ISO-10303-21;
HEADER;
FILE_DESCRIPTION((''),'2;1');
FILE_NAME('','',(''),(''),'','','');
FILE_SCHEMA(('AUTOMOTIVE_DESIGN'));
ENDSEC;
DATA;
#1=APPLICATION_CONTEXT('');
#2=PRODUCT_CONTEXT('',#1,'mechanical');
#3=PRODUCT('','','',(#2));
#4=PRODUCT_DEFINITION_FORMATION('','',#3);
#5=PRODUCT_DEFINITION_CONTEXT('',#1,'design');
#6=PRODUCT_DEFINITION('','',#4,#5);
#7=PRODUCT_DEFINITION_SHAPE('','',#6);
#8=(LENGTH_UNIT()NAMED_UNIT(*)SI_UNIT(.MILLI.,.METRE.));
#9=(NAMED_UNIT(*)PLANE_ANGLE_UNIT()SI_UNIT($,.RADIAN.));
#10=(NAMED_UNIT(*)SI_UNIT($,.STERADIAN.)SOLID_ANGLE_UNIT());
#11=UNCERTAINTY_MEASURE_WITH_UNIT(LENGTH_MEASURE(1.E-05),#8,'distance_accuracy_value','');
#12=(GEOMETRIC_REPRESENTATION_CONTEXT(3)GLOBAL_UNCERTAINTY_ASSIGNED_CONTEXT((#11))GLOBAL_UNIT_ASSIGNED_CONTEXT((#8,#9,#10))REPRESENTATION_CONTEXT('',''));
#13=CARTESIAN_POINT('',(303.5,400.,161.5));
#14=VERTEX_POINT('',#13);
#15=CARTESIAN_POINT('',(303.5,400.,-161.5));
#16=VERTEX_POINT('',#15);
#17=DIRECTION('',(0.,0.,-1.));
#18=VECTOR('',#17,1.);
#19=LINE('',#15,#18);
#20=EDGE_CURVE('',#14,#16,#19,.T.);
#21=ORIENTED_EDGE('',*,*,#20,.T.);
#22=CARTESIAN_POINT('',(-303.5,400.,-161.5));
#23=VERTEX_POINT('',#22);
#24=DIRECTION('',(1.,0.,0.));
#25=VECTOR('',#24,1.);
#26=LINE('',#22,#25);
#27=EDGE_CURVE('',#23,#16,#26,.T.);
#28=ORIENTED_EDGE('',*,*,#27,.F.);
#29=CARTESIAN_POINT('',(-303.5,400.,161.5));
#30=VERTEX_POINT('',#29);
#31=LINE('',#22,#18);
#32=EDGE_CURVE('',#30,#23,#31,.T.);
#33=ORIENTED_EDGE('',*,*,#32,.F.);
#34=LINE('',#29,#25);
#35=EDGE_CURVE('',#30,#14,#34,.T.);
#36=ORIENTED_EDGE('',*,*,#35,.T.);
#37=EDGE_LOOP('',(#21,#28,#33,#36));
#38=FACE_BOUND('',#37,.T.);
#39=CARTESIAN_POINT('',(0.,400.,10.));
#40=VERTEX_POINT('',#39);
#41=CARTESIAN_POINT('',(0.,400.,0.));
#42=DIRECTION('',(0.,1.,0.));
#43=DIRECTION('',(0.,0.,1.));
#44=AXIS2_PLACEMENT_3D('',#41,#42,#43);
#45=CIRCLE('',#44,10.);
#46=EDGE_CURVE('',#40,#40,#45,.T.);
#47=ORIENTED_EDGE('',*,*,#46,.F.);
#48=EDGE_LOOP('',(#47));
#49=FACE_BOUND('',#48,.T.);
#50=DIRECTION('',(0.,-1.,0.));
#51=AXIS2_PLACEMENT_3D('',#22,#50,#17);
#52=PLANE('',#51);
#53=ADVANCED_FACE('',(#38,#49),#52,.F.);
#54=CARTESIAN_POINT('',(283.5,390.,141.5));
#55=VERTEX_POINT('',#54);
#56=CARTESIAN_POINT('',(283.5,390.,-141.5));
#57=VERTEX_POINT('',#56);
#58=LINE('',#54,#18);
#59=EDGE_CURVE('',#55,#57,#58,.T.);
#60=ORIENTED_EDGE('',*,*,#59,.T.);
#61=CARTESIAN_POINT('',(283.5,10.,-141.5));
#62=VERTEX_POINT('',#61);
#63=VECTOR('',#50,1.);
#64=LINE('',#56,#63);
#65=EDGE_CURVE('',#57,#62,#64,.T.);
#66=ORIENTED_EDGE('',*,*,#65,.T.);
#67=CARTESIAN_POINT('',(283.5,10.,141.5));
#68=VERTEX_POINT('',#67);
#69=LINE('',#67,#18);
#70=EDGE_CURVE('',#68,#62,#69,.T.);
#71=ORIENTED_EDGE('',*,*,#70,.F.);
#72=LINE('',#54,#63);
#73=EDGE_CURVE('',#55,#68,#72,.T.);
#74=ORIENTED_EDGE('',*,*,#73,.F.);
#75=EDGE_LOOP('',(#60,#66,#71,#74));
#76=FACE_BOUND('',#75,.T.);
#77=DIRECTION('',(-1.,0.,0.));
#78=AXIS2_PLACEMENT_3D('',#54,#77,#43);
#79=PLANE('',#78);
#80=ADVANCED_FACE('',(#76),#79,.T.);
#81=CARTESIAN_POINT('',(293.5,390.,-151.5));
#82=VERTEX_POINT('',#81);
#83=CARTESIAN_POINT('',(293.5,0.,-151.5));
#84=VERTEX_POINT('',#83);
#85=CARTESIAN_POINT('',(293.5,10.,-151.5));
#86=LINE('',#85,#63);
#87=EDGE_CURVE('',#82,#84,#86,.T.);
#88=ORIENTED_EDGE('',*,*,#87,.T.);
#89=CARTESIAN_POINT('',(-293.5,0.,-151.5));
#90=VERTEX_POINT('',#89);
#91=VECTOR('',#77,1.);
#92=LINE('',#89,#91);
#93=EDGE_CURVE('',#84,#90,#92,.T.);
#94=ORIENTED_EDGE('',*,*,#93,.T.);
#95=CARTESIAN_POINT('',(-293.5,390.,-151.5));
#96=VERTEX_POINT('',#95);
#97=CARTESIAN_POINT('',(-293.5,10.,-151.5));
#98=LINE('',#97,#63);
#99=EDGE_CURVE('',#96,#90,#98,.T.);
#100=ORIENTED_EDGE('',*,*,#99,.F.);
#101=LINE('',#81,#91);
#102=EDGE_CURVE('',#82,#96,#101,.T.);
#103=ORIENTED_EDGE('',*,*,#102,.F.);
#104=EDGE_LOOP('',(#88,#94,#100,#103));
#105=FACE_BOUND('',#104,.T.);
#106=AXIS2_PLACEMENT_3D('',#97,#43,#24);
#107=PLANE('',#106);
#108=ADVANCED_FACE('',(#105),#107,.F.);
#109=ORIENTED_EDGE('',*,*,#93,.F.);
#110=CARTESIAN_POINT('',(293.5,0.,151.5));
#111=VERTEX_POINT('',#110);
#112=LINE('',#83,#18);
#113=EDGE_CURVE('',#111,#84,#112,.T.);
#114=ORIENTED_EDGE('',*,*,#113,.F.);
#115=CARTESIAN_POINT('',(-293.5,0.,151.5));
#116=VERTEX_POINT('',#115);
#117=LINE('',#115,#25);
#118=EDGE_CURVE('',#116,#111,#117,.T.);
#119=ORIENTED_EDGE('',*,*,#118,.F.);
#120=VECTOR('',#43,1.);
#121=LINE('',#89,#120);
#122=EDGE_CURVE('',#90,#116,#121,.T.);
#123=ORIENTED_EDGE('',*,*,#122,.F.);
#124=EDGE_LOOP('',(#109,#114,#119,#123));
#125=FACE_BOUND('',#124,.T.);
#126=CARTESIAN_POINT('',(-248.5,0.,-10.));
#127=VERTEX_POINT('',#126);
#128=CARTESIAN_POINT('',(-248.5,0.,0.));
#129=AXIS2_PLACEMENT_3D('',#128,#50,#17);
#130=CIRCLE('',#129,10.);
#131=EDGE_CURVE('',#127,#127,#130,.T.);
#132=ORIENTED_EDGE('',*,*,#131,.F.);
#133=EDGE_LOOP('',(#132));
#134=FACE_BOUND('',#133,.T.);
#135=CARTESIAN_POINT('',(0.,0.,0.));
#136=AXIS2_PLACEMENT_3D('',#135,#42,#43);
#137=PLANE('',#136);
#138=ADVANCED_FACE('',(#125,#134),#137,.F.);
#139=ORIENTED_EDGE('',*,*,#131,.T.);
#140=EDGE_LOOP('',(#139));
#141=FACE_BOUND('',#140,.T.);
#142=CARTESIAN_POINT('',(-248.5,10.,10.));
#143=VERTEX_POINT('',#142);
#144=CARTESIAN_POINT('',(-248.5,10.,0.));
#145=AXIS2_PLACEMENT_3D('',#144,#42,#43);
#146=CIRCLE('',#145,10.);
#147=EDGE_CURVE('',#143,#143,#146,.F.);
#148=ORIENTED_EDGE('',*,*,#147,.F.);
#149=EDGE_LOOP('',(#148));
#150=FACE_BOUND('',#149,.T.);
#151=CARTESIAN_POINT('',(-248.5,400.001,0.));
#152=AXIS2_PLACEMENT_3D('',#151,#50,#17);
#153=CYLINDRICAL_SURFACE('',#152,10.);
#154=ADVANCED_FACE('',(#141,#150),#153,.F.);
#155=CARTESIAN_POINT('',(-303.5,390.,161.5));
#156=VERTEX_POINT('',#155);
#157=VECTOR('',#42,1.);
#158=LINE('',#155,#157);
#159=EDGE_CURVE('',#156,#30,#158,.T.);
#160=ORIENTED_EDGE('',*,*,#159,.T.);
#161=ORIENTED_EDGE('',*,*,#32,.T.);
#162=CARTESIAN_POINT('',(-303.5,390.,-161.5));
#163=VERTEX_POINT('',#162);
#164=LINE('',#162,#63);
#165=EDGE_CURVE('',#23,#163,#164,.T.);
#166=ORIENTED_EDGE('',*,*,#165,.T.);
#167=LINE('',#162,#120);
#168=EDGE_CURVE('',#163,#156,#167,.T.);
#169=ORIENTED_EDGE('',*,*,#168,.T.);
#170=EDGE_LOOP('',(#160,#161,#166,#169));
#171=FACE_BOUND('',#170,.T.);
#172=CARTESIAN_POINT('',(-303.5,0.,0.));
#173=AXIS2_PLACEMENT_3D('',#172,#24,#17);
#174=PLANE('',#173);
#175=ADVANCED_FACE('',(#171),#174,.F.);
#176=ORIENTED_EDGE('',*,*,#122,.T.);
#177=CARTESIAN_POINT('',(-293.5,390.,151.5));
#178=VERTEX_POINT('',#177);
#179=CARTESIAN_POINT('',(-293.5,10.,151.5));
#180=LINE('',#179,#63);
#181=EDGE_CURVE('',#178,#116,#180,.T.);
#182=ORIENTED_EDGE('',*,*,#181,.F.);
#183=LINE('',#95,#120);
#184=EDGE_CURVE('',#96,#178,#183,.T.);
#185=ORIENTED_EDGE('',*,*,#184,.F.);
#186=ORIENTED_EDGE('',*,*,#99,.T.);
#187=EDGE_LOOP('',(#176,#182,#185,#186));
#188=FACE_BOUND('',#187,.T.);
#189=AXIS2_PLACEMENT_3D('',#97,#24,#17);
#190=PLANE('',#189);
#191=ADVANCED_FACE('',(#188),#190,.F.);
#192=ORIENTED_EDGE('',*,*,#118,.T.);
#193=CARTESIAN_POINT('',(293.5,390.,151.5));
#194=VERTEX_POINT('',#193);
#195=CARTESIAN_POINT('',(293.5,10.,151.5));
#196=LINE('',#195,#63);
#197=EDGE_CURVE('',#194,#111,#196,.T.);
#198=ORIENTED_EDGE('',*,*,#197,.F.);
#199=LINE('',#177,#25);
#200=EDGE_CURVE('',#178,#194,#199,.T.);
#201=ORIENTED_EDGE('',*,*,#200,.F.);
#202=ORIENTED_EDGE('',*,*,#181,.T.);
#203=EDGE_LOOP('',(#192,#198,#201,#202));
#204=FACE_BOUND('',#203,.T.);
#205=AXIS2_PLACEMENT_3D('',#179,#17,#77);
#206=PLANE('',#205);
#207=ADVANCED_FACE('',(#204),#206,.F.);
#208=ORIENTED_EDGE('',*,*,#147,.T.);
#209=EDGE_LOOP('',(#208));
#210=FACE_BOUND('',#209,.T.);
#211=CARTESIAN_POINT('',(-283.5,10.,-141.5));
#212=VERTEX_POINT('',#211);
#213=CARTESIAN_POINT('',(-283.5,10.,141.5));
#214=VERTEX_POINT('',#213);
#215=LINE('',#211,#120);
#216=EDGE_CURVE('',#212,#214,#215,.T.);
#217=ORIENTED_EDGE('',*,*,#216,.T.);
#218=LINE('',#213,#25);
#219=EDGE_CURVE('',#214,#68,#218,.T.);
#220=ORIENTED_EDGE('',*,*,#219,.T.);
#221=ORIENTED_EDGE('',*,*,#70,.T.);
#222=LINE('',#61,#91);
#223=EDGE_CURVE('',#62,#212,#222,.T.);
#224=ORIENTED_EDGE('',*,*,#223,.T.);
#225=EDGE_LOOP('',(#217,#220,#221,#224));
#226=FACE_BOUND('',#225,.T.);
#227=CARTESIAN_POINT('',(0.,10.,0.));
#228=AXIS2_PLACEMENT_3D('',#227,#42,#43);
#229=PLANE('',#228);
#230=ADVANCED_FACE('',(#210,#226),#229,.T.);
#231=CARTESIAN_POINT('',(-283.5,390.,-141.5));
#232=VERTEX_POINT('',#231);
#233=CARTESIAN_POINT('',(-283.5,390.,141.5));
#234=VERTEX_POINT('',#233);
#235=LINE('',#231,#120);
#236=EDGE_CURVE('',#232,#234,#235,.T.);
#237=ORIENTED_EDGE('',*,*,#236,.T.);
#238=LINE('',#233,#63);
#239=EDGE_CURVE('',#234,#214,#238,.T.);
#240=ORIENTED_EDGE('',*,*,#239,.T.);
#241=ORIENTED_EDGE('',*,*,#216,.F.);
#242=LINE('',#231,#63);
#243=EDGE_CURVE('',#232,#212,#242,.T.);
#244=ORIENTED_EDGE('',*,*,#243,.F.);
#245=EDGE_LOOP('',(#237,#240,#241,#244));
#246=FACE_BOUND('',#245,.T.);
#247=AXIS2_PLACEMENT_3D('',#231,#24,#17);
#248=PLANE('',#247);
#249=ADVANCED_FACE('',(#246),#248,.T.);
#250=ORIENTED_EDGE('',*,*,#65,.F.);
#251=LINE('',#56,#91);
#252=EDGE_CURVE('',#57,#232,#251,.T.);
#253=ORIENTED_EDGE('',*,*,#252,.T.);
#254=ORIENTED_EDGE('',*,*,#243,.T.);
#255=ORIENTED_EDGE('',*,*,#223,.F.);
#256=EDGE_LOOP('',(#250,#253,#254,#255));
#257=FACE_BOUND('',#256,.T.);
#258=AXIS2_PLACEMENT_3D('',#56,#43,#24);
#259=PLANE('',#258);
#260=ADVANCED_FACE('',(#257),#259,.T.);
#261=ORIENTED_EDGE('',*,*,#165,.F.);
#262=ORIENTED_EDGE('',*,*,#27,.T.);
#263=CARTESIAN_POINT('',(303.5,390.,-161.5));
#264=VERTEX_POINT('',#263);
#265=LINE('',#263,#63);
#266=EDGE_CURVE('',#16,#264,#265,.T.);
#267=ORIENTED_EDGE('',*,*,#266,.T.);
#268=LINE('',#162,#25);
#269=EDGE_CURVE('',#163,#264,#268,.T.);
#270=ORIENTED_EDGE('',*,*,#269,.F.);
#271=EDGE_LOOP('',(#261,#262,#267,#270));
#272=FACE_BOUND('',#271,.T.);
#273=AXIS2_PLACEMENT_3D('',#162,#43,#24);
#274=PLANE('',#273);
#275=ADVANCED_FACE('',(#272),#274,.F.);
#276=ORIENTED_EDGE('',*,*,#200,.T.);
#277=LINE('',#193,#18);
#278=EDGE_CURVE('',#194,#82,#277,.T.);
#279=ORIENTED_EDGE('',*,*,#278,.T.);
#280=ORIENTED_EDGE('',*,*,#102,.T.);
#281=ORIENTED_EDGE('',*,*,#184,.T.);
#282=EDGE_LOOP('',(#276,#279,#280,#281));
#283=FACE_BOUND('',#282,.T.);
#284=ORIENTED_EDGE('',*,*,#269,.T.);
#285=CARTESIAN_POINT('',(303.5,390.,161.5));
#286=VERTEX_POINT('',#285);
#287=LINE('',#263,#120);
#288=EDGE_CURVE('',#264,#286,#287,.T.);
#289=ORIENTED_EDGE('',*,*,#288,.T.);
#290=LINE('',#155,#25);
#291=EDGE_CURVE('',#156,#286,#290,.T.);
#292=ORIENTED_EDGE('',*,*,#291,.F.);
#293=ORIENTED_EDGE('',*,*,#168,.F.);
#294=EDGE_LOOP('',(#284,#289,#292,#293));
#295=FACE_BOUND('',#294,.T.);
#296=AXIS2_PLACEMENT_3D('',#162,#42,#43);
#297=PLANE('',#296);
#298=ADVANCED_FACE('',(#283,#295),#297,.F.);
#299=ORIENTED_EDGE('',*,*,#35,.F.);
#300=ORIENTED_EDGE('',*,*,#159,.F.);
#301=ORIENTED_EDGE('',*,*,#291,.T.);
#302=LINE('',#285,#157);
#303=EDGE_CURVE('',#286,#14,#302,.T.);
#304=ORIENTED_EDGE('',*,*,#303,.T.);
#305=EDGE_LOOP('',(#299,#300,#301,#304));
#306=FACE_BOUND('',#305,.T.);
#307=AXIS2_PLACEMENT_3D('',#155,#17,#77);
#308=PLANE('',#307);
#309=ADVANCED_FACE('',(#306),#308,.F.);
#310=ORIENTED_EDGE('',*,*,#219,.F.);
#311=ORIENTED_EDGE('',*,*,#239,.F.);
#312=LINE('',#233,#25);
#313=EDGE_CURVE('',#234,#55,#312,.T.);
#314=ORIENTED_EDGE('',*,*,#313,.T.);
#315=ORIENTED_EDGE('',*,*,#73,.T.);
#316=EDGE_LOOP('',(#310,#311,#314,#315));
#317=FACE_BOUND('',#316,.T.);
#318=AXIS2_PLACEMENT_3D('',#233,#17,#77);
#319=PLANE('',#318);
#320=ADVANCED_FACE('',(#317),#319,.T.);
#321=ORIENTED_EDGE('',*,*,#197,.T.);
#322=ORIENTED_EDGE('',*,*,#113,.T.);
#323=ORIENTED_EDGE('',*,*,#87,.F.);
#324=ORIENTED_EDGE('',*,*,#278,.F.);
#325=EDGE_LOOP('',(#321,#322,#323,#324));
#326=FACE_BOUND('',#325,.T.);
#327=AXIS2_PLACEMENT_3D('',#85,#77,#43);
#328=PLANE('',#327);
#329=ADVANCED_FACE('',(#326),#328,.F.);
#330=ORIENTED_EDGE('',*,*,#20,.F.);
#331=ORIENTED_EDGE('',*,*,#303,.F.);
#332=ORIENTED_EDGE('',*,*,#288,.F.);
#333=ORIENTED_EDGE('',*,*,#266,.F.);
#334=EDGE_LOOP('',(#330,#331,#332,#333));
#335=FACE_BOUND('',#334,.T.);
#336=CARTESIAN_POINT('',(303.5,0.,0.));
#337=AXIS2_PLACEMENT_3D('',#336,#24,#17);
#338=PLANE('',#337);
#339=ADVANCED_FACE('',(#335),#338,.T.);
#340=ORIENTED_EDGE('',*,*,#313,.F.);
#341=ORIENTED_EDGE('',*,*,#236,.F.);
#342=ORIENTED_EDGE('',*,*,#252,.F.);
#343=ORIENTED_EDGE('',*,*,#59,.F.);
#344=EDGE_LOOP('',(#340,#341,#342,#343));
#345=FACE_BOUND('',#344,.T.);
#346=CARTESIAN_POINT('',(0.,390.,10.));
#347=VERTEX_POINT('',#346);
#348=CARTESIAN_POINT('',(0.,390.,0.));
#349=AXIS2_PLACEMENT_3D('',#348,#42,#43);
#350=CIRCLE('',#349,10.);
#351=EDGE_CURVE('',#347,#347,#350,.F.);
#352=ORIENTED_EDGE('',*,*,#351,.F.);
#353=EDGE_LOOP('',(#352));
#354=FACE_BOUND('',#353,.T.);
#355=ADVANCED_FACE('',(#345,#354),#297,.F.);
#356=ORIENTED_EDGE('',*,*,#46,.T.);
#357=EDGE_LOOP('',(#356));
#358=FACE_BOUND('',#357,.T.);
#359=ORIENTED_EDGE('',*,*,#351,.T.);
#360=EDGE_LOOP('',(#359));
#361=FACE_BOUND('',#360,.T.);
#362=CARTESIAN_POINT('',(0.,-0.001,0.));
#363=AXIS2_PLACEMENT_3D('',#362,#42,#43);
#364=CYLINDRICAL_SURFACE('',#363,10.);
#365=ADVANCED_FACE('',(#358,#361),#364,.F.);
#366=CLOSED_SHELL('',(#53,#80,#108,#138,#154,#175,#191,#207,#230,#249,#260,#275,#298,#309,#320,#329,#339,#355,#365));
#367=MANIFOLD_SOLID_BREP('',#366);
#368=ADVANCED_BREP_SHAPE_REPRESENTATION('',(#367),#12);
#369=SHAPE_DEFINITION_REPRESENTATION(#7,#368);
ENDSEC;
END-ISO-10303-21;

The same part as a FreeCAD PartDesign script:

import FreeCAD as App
import Part
import Sketcher
from FreeCAD import Vector
Q = App.Units.Quantity

doc = App.newDocument("Part")
body = doc.addObject("PartDesign::Body", "Body")

sketch1 = body.newObject("Sketcher::SketchObject", "Sketch")
sketch1.AttachmentSupport = (doc.getObject("XZ_Plane"), [""])
sketch1.MapMode = "FlatFace"
sketch1.addGeometry(Part.LineSegment(Vector(-293.5, -151.5, 0), Vector(-293.5, 151.5, 0)), False)
sketch1.addGeometry(Part.LineSegment(Vector(-293.5, 151.5, 0), Vector(293.5, 151.5, 0)), False)
sketch1.addGeometry(Part.LineSegment(Vector(293.5, 151.5, 0), Vector(293.5, -151.5, 0)), False)
sketch1.addGeometry(Part.LineSegment(Vector(293.5, -151.5, 0), Vector(-293.5, -151.5, 0)), False)
sketch1.addConstraint(Sketcher.Constraint("Coincident", 0, 2, 1, 1))
sketch1.addConstraint(Sketcher.Constraint("Coincident", 1, 2, 2, 1))
sketch1.addConstraint(Sketcher.Constraint("Coincident", 2, 2, 3, 1))
sketch1.addConstraint(Sketcher.Constraint("Coincident", 3, 2, 0, 1))
sketch1.addConstraint(Sketcher.Constraint("Vertical", 0))
sketch1.addConstraint(Sketcher.Constraint("Horizontal", 1))
sketch1.addConstraint(Sketcher.Constraint("Vertical", 2))
sketch1.addConstraint(Sketcher.Constraint("Horizontal", 3))
sketch1.addConstraint(Sketcher.Constraint("Symmetric", 0, 2, 2, 2, -1, 1))
sketch1.addConstraint(Sketcher.Constraint("DistanceX", 1, 1, 1, 2, Q("587 mm")))
sketch1.addConstraint(Sketcher.Constraint("DistanceY", 0, 1, 0, 2, Q("303 mm")))
pad1 = body.newObject("PartDesign::Pad", "Pad")
pad1.Profile = sketch1
pad1.Length = 10
pad1.Reversed = True

sketch2 = body.newObject("Sketcher::SketchObject", "Sketch001")
sketch2.AttachmentSupport = (doc.getObject("XZ_Plane"), [""])
sketch2.MapMode = "FlatFace"
sketch2.AttachmentOffset = App.Placement(Vector(0, 0, -10), App.Rotation())
sketch2.addGeometry(Part.LineSegment(Vector(-293.5, -151.5, 0), Vector(-293.5, 151.5, 0)), False)
sketch2.addGeometry(Part.LineSegment(Vector(-293.5, 151.5, 0), Vector(293.5, 151.5, 0)), False)
sketch2.addGeometry(Part.LineSegment(Vector(293.5, 151.5, 0), Vector(293.5, -151.5, 0)), False)
sketch2.addGeometry(Part.LineSegment(Vector(293.5, -151.5, 0), Vector(-293.5, -151.5, 0)), False)
sketch2.addGeometry(Part.LineSegment(Vector(283.5, 141.5, 0), Vector(-283.5, 141.5, 0)), False)
sketch2.addGeometry(Part.LineSegment(Vector(-283.5, 141.5, 0), Vector(-283.5, -141.5, 0)), False)
sketch2.addGeometry(Part.LineSegment(Vector(-283.5, -141.5, 0), Vector(283.5, -141.5, 0)), False)
sketch2.addGeometry(Part.LineSegment(Vector(283.5, -141.5, 0), Vector(283.5, 141.5, 0)), False)
sketch2.addConstraint(Sketcher.Constraint("Coincident", 0, 2, 1, 1))
sketch2.addConstraint(Sketcher.Constraint("Coincident", 1, 2, 2, 1))
sketch2.addConstraint(Sketcher.Constraint("Coincident", 2, 2, 3, 1))
sketch2.addConstraint(Sketcher.Constraint("Coincident", 3, 2, 0, 1))
sketch2.addConstraint(Sketcher.Constraint("Coincident", 4, 2, 5, 1))
sketch2.addConstraint(Sketcher.Constraint("Coincident", 5, 2, 6, 1))
sketch2.addConstraint(Sketcher.Constraint("Coincident", 6, 2, 7, 1))
sketch2.addConstraint(Sketcher.Constraint("Coincident", 7, 2, 4, 1))
sketch2.addConstraint(Sketcher.Constraint("Vertical", 0))
sketch2.addConstraint(Sketcher.Constraint("Horizontal", 1))
sketch2.addConstraint(Sketcher.Constraint("Vertical", 2))
sketch2.addConstraint(Sketcher.Constraint("Horizontal", 3))
sketch2.addConstraint(Sketcher.Constraint("Horizontal", 4))
sketch2.addConstraint(Sketcher.Constraint("Vertical", 5))
sketch2.addConstraint(Sketcher.Constraint("Horizontal", 6))
sketch2.addConstraint(Sketcher.Constraint("Vertical", 7))
sketch2.addConstraint(Sketcher.Constraint("Symmetric", 0, 2, 2, 2, -1, 1))
sketch2.addConstraint(Sketcher.Constraint("Symmetric", 4, 2, 6, 2, -1, 1))
sketch2.addConstraint(Sketcher.Constraint("DistanceX", 1, 1, 1, 2, Q("587 mm")))
sketch2.addConstraint(Sketcher.Constraint("DistanceX", 4, 2, 4, 1, Q("567 mm")))
sketch2.addConstraint(Sketcher.Constraint("DistanceY", 0, 1, 0, 2, Q("303 mm")))
sketch2.addConstraint(Sketcher.Constraint("DistanceY", 5, 2, 5, 1, Q("283 mm")))
pad2 = body.newObject("PartDesign::Pad", "Pad001")
pad2.Profile = sketch2
pad2.Length = 380
pad2.Reversed = True

sketch3 = body.newObject("Sketcher::SketchObject", "Sketch002")
sketch3.AttachmentSupport = (doc.getObject("YZ_Plane"), [""])
sketch3.MapMode = "FlatFace"
sketch3.AttachmentOffset = App.Placement(Vector(0, 0, -293.5), App.Rotation())
sketch3.addGeometry(Part.LineSegment(Vector(400, -161.5, 0), Vector(390, -161.5, 0)), False)
sketch3.addGeometry(Part.LineSegment(Vector(390, -161.5, 0), Vector(390, 161.5, 0)), False)
sketch3.addGeometry(Part.LineSegment(Vector(390, 161.5, 0), Vector(400, 161.5, 0)), False)
sketch3.addGeometry(Part.LineSegment(Vector(400, 161.5, 0), Vector(400, -161.5, 0)), False)
sketch3.addConstraint(Sketcher.Constraint("Coincident", 0, 2, 1, 1))
sketch3.addConstraint(Sketcher.Constraint("Coincident", 1, 2, 2, 1))
sketch3.addConstraint(Sketcher.Constraint("Coincident", 2, 2, 3, 1))
sketch3.addConstraint(Sketcher.Constraint("Coincident", 3, 2, 0, 1))
sketch3.addConstraint(Sketcher.Constraint("Horizontal", 0))
sketch3.addConstraint(Sketcher.Constraint("Vertical", 1))
sketch3.addConstraint(Sketcher.Constraint("Horizontal", 2))
sketch3.addConstraint(Sketcher.Constraint("Vertical", 3))
sketch3.addConstraint(Sketcher.Constraint("DistanceX", 0, 2, 0, 1, Q("10 mm")))
sketch3.addConstraint(Sketcher.Constraint("DistanceY", 1, 1, 1, 2, Q("323 mm")))
sketch3.addConstraint(Sketcher.Constraint("DistanceX", -1, 1, 0, 2, Q("390 mm")))
sketch3.addConstraint(Sketcher.Constraint("DistanceY", 0, 2, -1, 1, Q("161.5 mm")))
pad3 = body.newObject("PartDesign::Pad", "Pad002")
pad3.Profile = sketch3
pad3.Type = "TwoLengths"
pad3.Length = 10
pad3.Length2 = 597
pad3.Reversed = True

sketch4 = body.newObject("Sketcher::SketchObject", "Sketch003")
sketch4.AttachmentSupport = (doc.getObject("XZ_Plane"), [""])
sketch4.MapMode = "FlatFace"
sketch4.AttachmentOffset = App.Placement(Vector(0, 0, -400), App.Rotation())
sketch4.addGeometry(Part.Circle(Vector(0, 0, 0), Vector(0, 0, 1), 10), False)
sketch4.addConstraint(Sketcher.Constraint("Coincident", 0, 3, -1, 1))
sketch4.addConstraint(Sketcher.Constraint("Diameter", 0, Q("20 mm")))
pocket1 = body.newObject("PartDesign::Pocket", "Pocket")
pocket1.Profile = sketch4
pocket1.Type = "UpToFirst"
pocket1.Reversed = True

sketch5 = body.newObject("Sketcher::SketchObject", "Sketch004")
sketch5.AttachmentSupport = (doc.getObject("XZ_Plane"), [""])
sketch5.MapMode = "FlatFace"
sketch5.addGeometry(Part.Circle(Vector(-248.5, 0, 0), Vector(0, 0, 1), 10), False)
sketch5.addConstraint(Sketcher.Constraint("PointOnObject", 0, 3, -1))
sketch5.addConstraint(Sketcher.Constraint("Diameter", 0, Q("20 mm")))
sketch5.addConstraint(Sketcher.Constraint("DistanceX", 0, 3, -1, 1, Q("248.5 mm")))
pocket2 = body.newObject("PartDesign::Pocket", "Pocket001")
pocket2.Profile = sketch5
pocket2.Type = "UpToFirst"

doc.recompute()
